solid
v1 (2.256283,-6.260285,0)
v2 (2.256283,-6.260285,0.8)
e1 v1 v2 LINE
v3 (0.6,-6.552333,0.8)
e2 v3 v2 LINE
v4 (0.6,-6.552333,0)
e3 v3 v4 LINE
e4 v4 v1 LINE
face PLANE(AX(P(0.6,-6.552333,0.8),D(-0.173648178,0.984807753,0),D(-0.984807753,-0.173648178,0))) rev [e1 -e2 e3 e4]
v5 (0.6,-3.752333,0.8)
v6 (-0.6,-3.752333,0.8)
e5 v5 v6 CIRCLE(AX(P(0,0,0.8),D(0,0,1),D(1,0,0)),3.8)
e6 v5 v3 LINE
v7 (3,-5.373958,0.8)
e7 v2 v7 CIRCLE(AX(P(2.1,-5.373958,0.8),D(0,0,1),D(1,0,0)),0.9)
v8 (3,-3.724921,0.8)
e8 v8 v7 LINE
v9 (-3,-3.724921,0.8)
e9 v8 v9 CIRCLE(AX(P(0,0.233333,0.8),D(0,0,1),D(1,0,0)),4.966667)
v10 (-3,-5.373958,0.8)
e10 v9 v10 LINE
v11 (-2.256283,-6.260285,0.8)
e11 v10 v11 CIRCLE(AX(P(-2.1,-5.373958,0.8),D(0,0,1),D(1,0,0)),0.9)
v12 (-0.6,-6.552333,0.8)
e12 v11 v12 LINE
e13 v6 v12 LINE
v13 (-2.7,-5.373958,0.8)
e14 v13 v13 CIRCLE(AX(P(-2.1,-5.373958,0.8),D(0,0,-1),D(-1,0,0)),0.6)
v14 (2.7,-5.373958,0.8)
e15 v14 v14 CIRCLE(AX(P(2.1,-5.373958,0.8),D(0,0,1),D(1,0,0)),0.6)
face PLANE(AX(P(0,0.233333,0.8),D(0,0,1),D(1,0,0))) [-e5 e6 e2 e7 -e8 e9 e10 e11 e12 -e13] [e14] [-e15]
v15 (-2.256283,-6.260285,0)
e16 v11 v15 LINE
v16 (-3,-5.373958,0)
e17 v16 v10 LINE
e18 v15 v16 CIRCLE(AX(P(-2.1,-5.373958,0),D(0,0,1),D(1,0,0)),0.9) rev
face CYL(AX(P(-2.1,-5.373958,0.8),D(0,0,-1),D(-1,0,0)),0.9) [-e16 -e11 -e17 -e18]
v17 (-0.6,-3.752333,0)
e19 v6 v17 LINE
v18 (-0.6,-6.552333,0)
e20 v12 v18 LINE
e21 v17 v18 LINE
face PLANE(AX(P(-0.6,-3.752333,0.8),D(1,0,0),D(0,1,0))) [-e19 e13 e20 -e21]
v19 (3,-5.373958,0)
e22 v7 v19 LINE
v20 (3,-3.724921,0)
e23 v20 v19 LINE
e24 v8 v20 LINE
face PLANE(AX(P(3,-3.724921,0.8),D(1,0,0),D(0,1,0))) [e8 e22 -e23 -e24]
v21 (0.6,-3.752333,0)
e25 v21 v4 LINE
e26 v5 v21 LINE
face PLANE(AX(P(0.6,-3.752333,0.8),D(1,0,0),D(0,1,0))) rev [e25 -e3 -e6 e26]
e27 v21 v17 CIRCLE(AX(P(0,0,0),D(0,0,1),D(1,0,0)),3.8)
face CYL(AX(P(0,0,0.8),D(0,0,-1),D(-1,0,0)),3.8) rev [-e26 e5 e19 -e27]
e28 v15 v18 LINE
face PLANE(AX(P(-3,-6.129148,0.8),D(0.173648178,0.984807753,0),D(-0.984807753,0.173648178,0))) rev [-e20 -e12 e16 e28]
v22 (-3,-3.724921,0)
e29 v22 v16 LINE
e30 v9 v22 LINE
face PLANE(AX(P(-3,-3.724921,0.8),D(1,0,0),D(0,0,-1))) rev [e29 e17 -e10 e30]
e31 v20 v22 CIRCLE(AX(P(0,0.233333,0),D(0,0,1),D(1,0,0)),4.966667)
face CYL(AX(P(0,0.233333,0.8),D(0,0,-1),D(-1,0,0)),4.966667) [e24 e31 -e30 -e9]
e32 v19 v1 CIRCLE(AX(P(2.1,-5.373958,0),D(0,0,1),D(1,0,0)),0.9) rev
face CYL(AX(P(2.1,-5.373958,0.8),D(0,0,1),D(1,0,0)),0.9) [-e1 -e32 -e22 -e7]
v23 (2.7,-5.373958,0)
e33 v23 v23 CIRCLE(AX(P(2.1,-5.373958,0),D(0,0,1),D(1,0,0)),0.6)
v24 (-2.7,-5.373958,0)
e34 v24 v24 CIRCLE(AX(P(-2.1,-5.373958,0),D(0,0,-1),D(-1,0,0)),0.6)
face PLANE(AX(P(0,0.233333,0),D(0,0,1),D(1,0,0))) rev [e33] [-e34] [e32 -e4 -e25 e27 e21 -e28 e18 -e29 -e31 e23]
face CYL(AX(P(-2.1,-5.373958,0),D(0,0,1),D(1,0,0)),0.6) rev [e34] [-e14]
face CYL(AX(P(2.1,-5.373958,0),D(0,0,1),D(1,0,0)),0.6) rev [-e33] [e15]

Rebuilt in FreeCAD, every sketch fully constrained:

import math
import FreeCAD as App
import Part
import Sketcher
Q = App.Units.Quantity


def edges_at(feature, points):
    """Names of the edges that pass closest to the given points."""
    edges = feature.Shape.Edges
    near = lambda p: min(range(len(edges)), key=lambda i: edges[i].distToShape(Part.Vertex(*p))[0])
    return sorted({f"Edge{near(p) + 1}" for p in points})

doc = App.newDocument("Part")
body = doc.addObject("PartDesign::Body", "Body")

# Sketch on XY plane
sketch1 = doc.addObject("Sketcher::SketchObject", "Sketch")
body.addObject(sketch1)
sketch1.AttachmentSupport = (doc.XY_Plane, [""])
sketch1.MapMode = "FlatFace"
sketch1.addGeometry(Part.LineSegment(App.Vector(-0.6, -6.552333, 0), App.Vector(-0.6, -3.752333, 0)), False)
sketch1.addGeometry(Part.ArcOfCircle(Part.Circle(App.Vector(0, 0, 0), App.Vector(0, 0, 1), 3.8), math.radians(-80.91528), math.radians(260.91528)), False)
sketch1.addGeometry(Part.LineSegment(App.Vector(0.6, -3.752333, 0), App.Vector(0.6, -6.552333, 0)), False)
sketch1.addGeometry(Part.LineSegment(App.Vector(0.6, -6.552333, 0), App.Vector(3, -6.129148, 0)), False)
sketch1.addGeometry(Part.LineSegment(App.Vector(3, -6.129148, 0), App.Vector(3, -3.724921, 0)), False)
sketch1.addGeometry(Part.ArcOfCircle(Part.Circle(App.Vector(0, 0.233333, 0), App.Vector(0, 0, 1), 4.966667), math.radians(-52.841153), math.radians(232.841153)), False)
sketch1.addGeometry(Part.LineSegment(App.Vector(-3, -3.724921, 0), App.Vector(-3, -6.129148, 0)), False)
sketch1.addGeometry(Part.LineSegment(App.Vector(-3, -6.129148, 0), App.Vector(-0.6, -6.552333, 0)), False)
sketch1.addConstraint(Sketcher.Constraint("Coincident", 0, 2, 1, 2))
sketch1.addConstraint(Sketcher.Constraint("Coincident", 1, 1, 2, 1))
sketch1.addConstraint(Sketcher.Constraint("Coincident", 2, 2, 3, 1))
sketch1.addConstraint(Sketcher.Constraint("Coincident", 3, 2, 4, 1))
sketch1.addConstraint(Sketcher.Constraint("Coincident", 4, 2, 5, 1))
sketch1.addConstraint(Sketcher.Constraint("Coincident", 5, 2, 6, 1))
sketch1.addConstraint(Sketcher.Constraint("Coincident", 6, 2, 7, 1))
sketch1.addConstraint(Sketcher.Constraint("Coincident", 7, 2, 0, 1))
sketch1.addConstraint(Sketcher.Constraint("Vertical", 0))
sketch1.addConstraint(Sketcher.Constraint("Vertical", 2))
sketch1.addConstraint(Sketcher.Constraint("Vertical", 4))
sketch1.addConstraint(Sketcher.Constraint("Vertical", 6))
sketch1.addConstraint(Sketcher.Constraint("Coincident", 1, 3, -1, 1))
sketch1.addConstraint(Sketcher.Constraint("Symmetric", 4, 2, 5, 2, -2))
sketch1.addConstraint(Sketcher.Constraint("Symmetric", 2, 2, 7, 2, -2))
sketch1.addConstraint(Sketcher.Constraint("Horizontal", 3, 2, 6, 2))
sketch1.addConstraint(Sketcher.Constraint("Radius", 1, 3.8))
sketch1.addConstraint(Sketcher.Constraint("Angle", 3, Q("10 deg")))
sketch1.addConstraint(Sketcher.Constraint("DistanceY", 0, 1, 0, 2, 2.8))
sketch1.addConstraint(Sketcher.Constraint("DistanceX", -1, 1, 3, 2, 3.0))
sketch1.addConstraint(Sketcher.Constraint("DistanceX", 0, 2, -1, 1, 0.6))
sketch1.addConstraint(Sketcher.Constraint("Radius", 5, 4.966667))
sketch1.addConstraint(Sketcher.Constraint("DistanceY", 4, 1, 4, 2, 2.404227))
pad1 = doc.addObject("PartDesign::Pad", "Pad")
body.addObject(pad1)
pad1.Profile = sketch1
pad1.Length = 0.8
doc.recompute()

fillet = doc.addObject("PartDesign::Fillet", "Fillet")
body.addObject(fillet)
fillet.Base = (pad1, edges_at(pad1, [(3, -6.129, 0.4), (-3, -6.129, 0.4)]))
fillet.Radius = 0.9

# Sketch on XY plane
sketch2 = doc.addObject("Sketcher::SketchObject", "Sketch001")
body.addObject(sketch2)
sketch2.AttachmentSupport = (doc.XY_Plane, [""])
sketch2.MapMode = "FlatFace"
sketch2.AttachmentOffset = App.Placement(App.Vector(0, 0, 0.8), App.Rotation())
sketch2.addGeometry(Part.Circle(App.Vector(2.1, -5.373958, 0), App.Vector(0, 0, 1), 0.6), False)
sketch2.addConstraint(Sketcher.Constraint("Diameter", 0, 1.2))
sketch2.addConstraint(Sketcher.Constraint("DistanceX", -1, 1, 0, 3, 2.1))
sketch2.addConstraint(Sketcher.Constraint("DistanceY", 0, 3, -1, 1, 5.373958))
pocket1 = doc.addObject("PartDesign::Pocket", "Pocket")
body.addObject(pocket1)
pocket1.Profile = sketch2
pocket1.Type = "ThroughAll"
doc.recompute()

mirrored = doc.addObject("PartDesign::Mirrored", "Mirrored")
body.addObject(mirrored)
mirrored.Originals = [pocket1]
mirrored.MirrorPlane = (doc.YZ_Plane, [""])
body.Tip = mirrored

doc.recompute()
